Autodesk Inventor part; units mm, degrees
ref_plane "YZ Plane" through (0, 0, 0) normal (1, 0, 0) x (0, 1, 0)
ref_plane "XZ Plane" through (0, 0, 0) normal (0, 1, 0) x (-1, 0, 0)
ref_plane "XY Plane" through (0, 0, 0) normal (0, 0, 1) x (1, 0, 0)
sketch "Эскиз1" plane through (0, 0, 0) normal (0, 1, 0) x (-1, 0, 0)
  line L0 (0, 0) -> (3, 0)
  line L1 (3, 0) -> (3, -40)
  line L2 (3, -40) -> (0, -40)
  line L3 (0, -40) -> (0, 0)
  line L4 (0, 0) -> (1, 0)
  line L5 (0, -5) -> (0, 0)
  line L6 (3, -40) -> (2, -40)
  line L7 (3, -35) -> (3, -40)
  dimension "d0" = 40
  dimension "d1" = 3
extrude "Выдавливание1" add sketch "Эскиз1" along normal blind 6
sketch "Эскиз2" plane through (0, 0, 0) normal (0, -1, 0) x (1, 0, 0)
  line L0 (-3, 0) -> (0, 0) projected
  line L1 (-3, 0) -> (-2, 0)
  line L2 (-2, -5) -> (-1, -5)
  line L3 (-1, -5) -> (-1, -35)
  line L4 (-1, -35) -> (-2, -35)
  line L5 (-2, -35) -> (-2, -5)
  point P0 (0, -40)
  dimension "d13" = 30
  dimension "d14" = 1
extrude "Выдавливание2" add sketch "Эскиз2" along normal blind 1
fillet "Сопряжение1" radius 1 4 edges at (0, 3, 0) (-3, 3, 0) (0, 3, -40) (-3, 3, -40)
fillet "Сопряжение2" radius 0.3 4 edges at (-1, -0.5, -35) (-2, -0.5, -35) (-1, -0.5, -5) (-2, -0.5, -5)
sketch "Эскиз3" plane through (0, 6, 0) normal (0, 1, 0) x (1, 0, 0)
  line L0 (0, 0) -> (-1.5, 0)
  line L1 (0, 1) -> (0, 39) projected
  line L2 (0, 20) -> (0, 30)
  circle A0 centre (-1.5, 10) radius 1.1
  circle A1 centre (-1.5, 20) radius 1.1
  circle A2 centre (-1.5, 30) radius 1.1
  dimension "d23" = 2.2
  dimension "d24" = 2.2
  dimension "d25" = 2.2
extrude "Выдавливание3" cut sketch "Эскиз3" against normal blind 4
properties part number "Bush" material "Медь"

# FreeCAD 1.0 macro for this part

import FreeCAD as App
import Part
import Sketcher

V = App.Vector
Q = App.Units.Quantity


def edges_at(feature, points):
    """Names of the edges that pass closest to the given points."""
    edges = feature.Shape.Edges
    near = lambda p: min(range(len(edges)), key=lambda i: edges[i].distToShape(Part.Vertex(*p))[0])
    return sorted({f"Edge{near(p) + 1}" for p in points})

doc = App.newDocument("Part")
body = doc.addObject("PartDesign::Body", "Body")

# Sketch on XZ plane
sketch1 = doc.addObject("Sketcher::SketchObject", "Sketch")
body.addObject(sketch1)
sketch1.AttachmentSupport = (doc.XZ_Plane, [""])
sketch1.MapMode = "FlatFace"
sketch1.addGeometry([
    Part.LineSegment(V(-3, 0, 0), V(0, 0, 0)),
    Part.LineSegment(V(0, 0, 0), V(0, -40, 0)),
    Part.LineSegment(V(0, -40, 0), V(-3, -40, 0)),
    Part.LineSegment(V(-3, -40, 0), V(-3, 0, 0)),
], False)
sketch1.addConstraint([
    Sketcher.Constraint("Coincident", 0, 2, 1, 1),
    Sketcher.Constraint("Coincident", 1, 2, 2, 1),
    Sketcher.Constraint("Coincident", 2, 2, 3, 1),
    Sketcher.Constraint("Coincident", 3, 2, 0, 1),
    Sketcher.Constraint("Horizontal", 0),
    Sketcher.Constraint("Vertical", 1),
    Sketcher.Constraint("Horizontal", 2),
    Sketcher.Constraint("Vertical", 3),
    Sketcher.Constraint("Coincident", 0, 2, -1, 1),
    Sketcher.Constraint("DistanceX", 0, 1, 0, 2, Q("3 mm")),
    Sketcher.Constraint("DistanceY", 1, 2, 1, 1, Q("40 mm")),
])
pad1 = doc.addObject("PartDesign::Pad", "Pad")
body.addObject(pad1)
pad1.Profile = sketch1
pad1.Length = 6
pad1.Reversed = True

# Sketch on XZ plane
sketch2 = doc.addObject("Sketcher::SketchObject", "Sketch001")
body.addObject(sketch2)
sketch2.AttachmentSupport = (doc.XZ_Plane, [""])
sketch2.MapMode = "FlatFace"
sketch2.addGeometry([
    Part.LineSegment(V(-1, -5, 0), V(-2, -5, 0)),
    Part.LineSegment(V(-2, -5, 0), V(-2, -35, 0)),
    Part.LineSegment(V(-2, -35, 0), V(-1, -35, 0)),
    Part.LineSegment(V(-1, -35, 0), V(-1, -5, 0)),
], False)
sketch2.addConstraint([
    Sketcher.Constraint("Coincident", 0, 2, 1, 1),
    Sketcher.Constraint("Coincident", 1, 2, 2, 1),
    Sketcher.Constraint("Coincident", 2, 2, 3, 1),
    Sketcher.Constraint("Coincident", 3, 2, 0, 1),
    Sketcher.Constraint("Horizontal", 0),
    Sketcher.Constraint("Vertical", 1),
    Sketcher.Constraint("Horizontal", 2),
    Sketcher.Constraint("Vertical", 3),
    Sketcher.Constraint("DistanceX", 0, 2, 0, 1, Q("1 mm")),
    Sketcher.Constraint("DistanceY", 1, 2, 1, 1, Q("30 mm")),
    Sketcher.Constraint("DistanceX", 2, 2, -1, 1, Q("1 mm")),
    Sketcher.Constraint("DistanceY", 0, 2, -1, 1, Q("5 mm")),
])
pad2 = doc.addObject("PartDesign::Pad", "Pad001")
body.addObject(pad2)
pad2.Profile = sketch2
pad2.Length = 1
doc.recompute()

fillet = doc.addObject("PartDesign::Fillet", "Fillet")
body.addObject(fillet)
fillet.Base = (pad2, edges_at(pad2, [
    (0, 3, 0),
    (-3, 3, 0),
    (0, 3, -40),
    (-3, 3, -40),
]))
fillet.Radius = 1
doc.recompute()

fillet2 = doc.addObject("PartDesign::Fillet", "Fillet001")
body.addObject(fillet2)
fillet2.Base = (fillet, edges_at(fillet, [
    (-1, -0.5, -35),
    (-2, -0.5, -35),
    (-1, -0.5, -5),
    (-2, -0.5, -5),
]))
fillet2.Radius = 0.3

# Sketch on XZ plane
sketch3 = doc.addObject("Sketcher::SketchObject", "Sketch002")
body.addObject(sketch3)
sketch3.AttachmentSupport = (doc.XZ_Plane, [""])
sketch3.MapMode = "FlatFace"
sketch3.AttachmentOffset = App.Placement(V(0, 0, -6), App.Rotation())
sketch3.addGeometry([
    Part.Circle(V(-1.5, -10, 0), V(0, 0, 1), 1.1),
    Part.Circle(V(-1.5, -20, 0), V(0, 0, 1), 1.1),
    Part.Circle(V(-1.5, -30, 0), V(0, 0, 1), 1.1),
], False)
sketch3.addConstraint([
    Sketcher.Constraint("Equal", 0, 1),
    Sketcher.Constraint("Equal", 1, 2),
    Sketcher.Constraint("Vertical", 0, 3, 1, 3),
    Sketcher.Constraint("Vertical", 1, 3, 2, 3),
    Sketcher.Constraint("Diameter", 0, Q("2.2 mm")),
    Sketcher.Constraint("DistanceY", 0, 3, -1, 1, Q("10 mm")),
    Sketcher.Constraint("DistanceY", 1, 3, -1, 1, Q("20 mm")),
    Sketcher.Constraint("DistanceY", 2, 3, -1, 1, Q("30 mm")),
    Sketcher.Constraint("DistanceX", 0, 3, -1, 1, Q("1.5 mm")),
])
pocket1 = doc.addObject("PartDesign::Pocket", "Pocket")
body.addObject(pocket1)
pocket1.Profile = sketch3
pocket1.Length = 4
pocket1.Reversed = True

doc.recompute()
